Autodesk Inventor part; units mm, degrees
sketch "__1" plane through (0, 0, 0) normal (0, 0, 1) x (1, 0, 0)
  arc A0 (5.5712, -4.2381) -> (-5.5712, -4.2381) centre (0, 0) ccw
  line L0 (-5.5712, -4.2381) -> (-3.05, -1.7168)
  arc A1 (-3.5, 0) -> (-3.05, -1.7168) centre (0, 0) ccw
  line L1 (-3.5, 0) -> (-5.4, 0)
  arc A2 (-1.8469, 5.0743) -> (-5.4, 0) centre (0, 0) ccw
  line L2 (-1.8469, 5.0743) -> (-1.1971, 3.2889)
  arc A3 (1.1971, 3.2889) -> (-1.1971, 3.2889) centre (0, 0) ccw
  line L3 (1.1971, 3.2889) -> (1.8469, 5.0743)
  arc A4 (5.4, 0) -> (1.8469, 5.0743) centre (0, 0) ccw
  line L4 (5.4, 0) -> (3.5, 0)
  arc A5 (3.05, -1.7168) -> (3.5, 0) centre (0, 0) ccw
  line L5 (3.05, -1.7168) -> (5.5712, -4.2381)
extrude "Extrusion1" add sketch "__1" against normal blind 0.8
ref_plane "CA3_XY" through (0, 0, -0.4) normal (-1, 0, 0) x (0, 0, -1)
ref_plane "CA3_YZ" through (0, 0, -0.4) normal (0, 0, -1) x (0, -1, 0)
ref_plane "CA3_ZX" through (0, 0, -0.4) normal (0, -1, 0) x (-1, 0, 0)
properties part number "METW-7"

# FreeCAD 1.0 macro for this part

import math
import FreeCAD as App
import Part
import Sketcher

V = App.Vector
Q = App.Units.Quantity

doc = App.newDocument("Part")
body = doc.addObject("PartDesign::Body", "Body")

sketch1 = body.newObject("Sketcher::SketchObject", "Sketch")
sketch1.AttachmentSupport = (doc.getObject("XY_Plane"), [""])
sketch1.MapMode = "FlatFace"
sketch1.addGeometry([
    Part.LineSegment(V(3, -1.7, 0), V(5.6, -4.2, 0)),
    Part.ArcOfCircle(Part.Circle(V(0, 0, 0), V(0, 0, 1), 7), math.radians(-37), math.radians(217)),
    Part.LineSegment(V(-5.6, -4.2, 0), V(-3, -1.7, 0)),
    Part.ArcOfCircle(Part.Circle(V(0, 0, 0), V(0, 0, 1), 3.5), math.radians(180), math.radians(209)),
    Part.LineSegment(V(-3.5, 0, 0), V(-5.4, 0, 0)),
    Part.ArcOfCircle(Part.Circle(V(0, 0, 0), V(0, 0, 1), 5.4), math.radians(110), math.radians(180)),
    Part.LineSegment(V(-1.8, 5.1, 0), V(-1.2, 3.3, 0)),
    Part.ArcOfCircle(Part.Circle(V(0, 0, 0), V(0, 0, 1), 3.5), math.radians(70), math.radians(110)),
    Part.LineSegment(V(1.2, 3.3, 0), V(1.8, 5.1, 0)),
    Part.ArcOfCircle(Part.Circle(V(0, 0, 0), V(0, 0, 1), 5.4), math.radians(0), math.radians(70)),
    Part.LineSegment(V(5.4, 0, 0), V(3.5, 0, 0)),
    Part.ArcOfCircle(Part.Circle(V(0, 0, 0), V(0, 0, 1), 3.5), math.radians(-29), math.radians(0)),
], False)
sketch1.addConstraint([
    Sketcher.Constraint("Coincident", 0, 2, 1, 1),
    Sketcher.Constraint("Coincident", 1, 2, 2, 1),
    Sketcher.Constraint("Coincident", 2, 2, 3, 2),
    Sketcher.Constraint("Coincident", 3, 1, 4, 1),
    Sketcher.Constraint("Coincident", 4, 2, 5, 2),
    Sketcher.Constraint("Coincident", 5, 1, 6, 1),
    Sketcher.Constraint("Coincident", 6, 2, 7, 2),
    Sketcher.Constraint("Coincident", 7, 1, 8, 1),
    Sketcher.Constraint("Coincident", 8, 2, 9, 2),
    Sketcher.Constraint("Coincident", 9, 1, 10, 1),
    Sketcher.Constraint("Coincident", 10, 2, 11, 2),
    Sketcher.Constraint("Coincident", 11, 1, 0, 1),
    Sketcher.Constraint("Horizontal", 4),
    Sketcher.Constraint("Horizontal", 10),
    Sketcher.Constraint("Coincident", 1, 3, -1, 1),
    Sketcher.Constraint("Coincident", 3, 3, -1, 1),
    Sketcher.Constraint("Coincident", 5, 3, -1, 1),
    Sketcher.Constraint("Coincident", 7, 3, -1, 1),
    Sketcher.Constraint("Coincident", 9, 3, -1, 1),
    Sketcher.Constraint("Coincident", 11, 3, -1, 1),
    Sketcher.Constraint("Equal", 3, 7),
    Sketcher.Constraint("Equal", 5, 9),
    Sketcher.Constraint("Equal", 7, 11),
    Sketcher.Constraint("PointOnObject", 3, 1, -1),
    Sketcher.Constraint("PointOnObject", 9, 1, -1),
    Sketcher.Constraint("Perpendicular", 0, 2),
    Sketcher.Constraint("Horizontal", 0, 2, 1, 2),
    Sketcher.Constraint("Horizontal", 6, 2, 7, 1),
    Sketcher.Constraint("Horizontal", 5, 1, 8, 2),
    Sketcher.Constraint("Horizontal", 2, 2, 11, 1),
    Sketcher.Constraint("Radius", 1, Q("7 mm")),
    Sketcher.Constraint("Radius", 3, Q("3.5 mm")),
    Sketcher.Constraint("Radius", 5, Q("5.4 mm")),
    Sketcher.Constraint("Angle", 6, Q("-70.001 deg")),
    Sketcher.Constraint("DistanceX", 2, 2, -1, 1, Q("3.05 mm")),
    Sketcher.Constraint("DistanceX", 5, 1, -1, 1, Q("1.847 mm")),
])
pad1 = body.newObject("PartDesign::Pad", "Pad")
pad1.Profile = sketch1
pad1.Length = 0.8
pad1.Reversed = True

doc.recompute()
